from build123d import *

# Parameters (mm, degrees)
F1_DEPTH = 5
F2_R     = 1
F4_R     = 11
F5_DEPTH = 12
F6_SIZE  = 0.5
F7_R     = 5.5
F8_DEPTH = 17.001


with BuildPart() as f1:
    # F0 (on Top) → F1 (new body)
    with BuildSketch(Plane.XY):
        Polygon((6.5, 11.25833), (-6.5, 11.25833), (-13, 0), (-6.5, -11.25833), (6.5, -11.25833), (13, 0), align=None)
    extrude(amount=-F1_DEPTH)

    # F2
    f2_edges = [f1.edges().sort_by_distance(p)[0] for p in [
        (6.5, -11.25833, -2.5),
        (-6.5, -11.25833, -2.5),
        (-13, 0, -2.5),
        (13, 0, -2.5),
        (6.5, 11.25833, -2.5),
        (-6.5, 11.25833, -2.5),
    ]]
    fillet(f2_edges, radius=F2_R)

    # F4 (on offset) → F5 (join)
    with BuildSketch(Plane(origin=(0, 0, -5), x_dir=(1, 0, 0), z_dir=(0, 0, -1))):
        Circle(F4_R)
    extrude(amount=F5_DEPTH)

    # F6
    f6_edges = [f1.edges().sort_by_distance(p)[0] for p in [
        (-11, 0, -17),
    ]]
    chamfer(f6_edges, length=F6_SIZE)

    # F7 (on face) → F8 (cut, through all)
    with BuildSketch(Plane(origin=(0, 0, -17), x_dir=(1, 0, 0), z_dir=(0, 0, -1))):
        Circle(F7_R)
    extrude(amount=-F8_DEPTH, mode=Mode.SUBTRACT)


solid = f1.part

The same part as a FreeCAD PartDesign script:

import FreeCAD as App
import Part
import Sketcher
from FreeCAD import Vector
Q = App.Units.Quantity


def edges_at(feature, points):
    """Names of the edges that pass closest to the given points."""
    edges = feature.Shape.Edges
    near = lambda p: min(range(len(edges)), key=lambda i: edges[i].distToShape(Part.Vertex(*p))[0])
    return sorted({f"Edge{near(p) + 1}" for p in points})

doc = App.newDocument("Part")
body = doc.addObject("PartDesign::Body", "Body")

# Sketch on XY plane
sketch1 = body.newObject("Sketcher::SketchObject", "Sketch")
sketch1.AttachmentSupport = (doc.getObject("XY_Plane"), [""])
sketch1.MapMode = "FlatFace"
sketch1.addGeometry([
    Part.LineSegment(Vector(6, 11, 0), Vector(-6, 11, 0)),  # 0
    Part.LineSegment(Vector(-6, 11, 0), Vector(-13, 0, 0)),  # 1
    Part.LineSegment(Vector(-13, 0, 0), Vector(-6, -11, 0)),  # 2
    Part.LineSegment(Vector(-6, -11, 0), Vector(6, -11, 0)),  # 3
    Part.LineSegment(Vector(6, -11, 0), Vector(13, 0, 0)),  # 4
    Part.LineSegment(Vector(13, 0, 0), Vector(6, 11, 0)),  # 5
], False)
sketch1.addConstraint([
    Sketcher.Constraint("Coincident", 0, 2, 1, 1),
    Sketcher.Constraint("Coincident", 1, 2, 2, 1),
    Sketcher.Constraint("Coincident", 2, 2, 3, 1),
    Sketcher.Constraint("Coincident", 3, 2, 4, 1),
    Sketcher.Constraint("Coincident", 4, 2, 5, 1),
    Sketcher.Constraint("Coincident", 5, 2, 0, 1),
    Sketcher.Constraint("Horizontal", 0),
    Sketcher.Constraint("Horizontal", 3),
    Sketcher.Constraint("Symmetric", 0, 2, 3, 2, -1, 1),
    Sketcher.Constraint("Symmetric", 1, 2, 4, 2, -1, 1),
    Sketcher.Constraint("PointOnObject", 1, 2, -1),
    Sketcher.Constraint("Parallel", 2, 5),
    Sketcher.Constraint("Vertical", 0, 2, 2, 2),
    Sketcher.Constraint("DistanceX", 0, 2, 0, 1, Q("13 mm")),
    Sketcher.Constraint("Angle", 1, Q("-120.000001 deg")),
    Sketcher.Constraint("Distance", 1, Q("13 mm")),
])
pad1 = body.newObject("PartDesign::Pad", "Pad")
pad1.Profile = sketch1
pad1.Length = 5
pad1.Reversed = True
doc.recompute()

fillet = body.newObject("PartDesign::Fillet", "Fillet")
fillet.Base = (pad1, edges_at(pad1, [
    (6.5, -11.258, -2.5),
    (-6.5, -11.258, -2.5),
    (-13, 0, -2.5),
    (13, 0, -2.5),
    (6.5, 11.258, -2.5),
    (-6.5, 11.258, -2.5),
]))
fillet.Radius = 1

# Sketch on XY plane
sketch2 = body.newObject("Sketcher::SketchObject", "Sketch001")
sketch2.AttachmentSupport = (doc.getObject("XY_Plane"), [""])
sketch2.MapMode = "FlatFace"
sketch2.AttachmentOffset = App.Placement(Vector(0, 0, -5), App.Rotation())
sketch2.addGeometry(Part.Circle(Vector(0, 0, 0), Vector(0, 0, 1), 11), False)
sketch2.addConstraint([
    Sketcher.Constraint("Coincident", 0, 3, -1, 1),
    Sketcher.Constraint("Diameter", 0, Q("22 mm")),
])
pad2 = body.newObject("PartDesign::Pad", "Pad001")
pad2.Profile = sketch2
pad2.Length = 12
pad2.Reversed = True
doc.recompute()

chamfer = body.newObject("PartDesign::Chamfer", "Chamfer")
chamfer.Base = (pad2, edges_at(pad2, [(-11, 0, -17)]))
chamfer.Size = 0.5

# Sketch on XY plane
sketch3 = body.newObject("Sketcher::SketchObject", "Sketch002")
sketch3.AttachmentSupport = (doc.getObject("XY_Plane"), [""])
sketch3.MapMode = "FlatFace"
sketch3.AttachmentOffset = App.Placement(Vector(0, 0, -17), App.Rotation())
sketch3.addGeometry(Part.Circle(Vector(0, 0, 0), Vector(0, 0, 1), 6), False)
sketch3.addConstraint([
    Sketcher.Constraint("Coincident", 0, 3, -1, 1),
    Sketcher.Constraint("Diameter", 0, Q("11 mm")),
])
pocket1 = body.newObject("PartDesign::Pocket", "Pocket")
pocket1.Profile = sketch3
pocket1.Type = "ThroughAll"
pocket1.Reversed = True

doc.recompute()
